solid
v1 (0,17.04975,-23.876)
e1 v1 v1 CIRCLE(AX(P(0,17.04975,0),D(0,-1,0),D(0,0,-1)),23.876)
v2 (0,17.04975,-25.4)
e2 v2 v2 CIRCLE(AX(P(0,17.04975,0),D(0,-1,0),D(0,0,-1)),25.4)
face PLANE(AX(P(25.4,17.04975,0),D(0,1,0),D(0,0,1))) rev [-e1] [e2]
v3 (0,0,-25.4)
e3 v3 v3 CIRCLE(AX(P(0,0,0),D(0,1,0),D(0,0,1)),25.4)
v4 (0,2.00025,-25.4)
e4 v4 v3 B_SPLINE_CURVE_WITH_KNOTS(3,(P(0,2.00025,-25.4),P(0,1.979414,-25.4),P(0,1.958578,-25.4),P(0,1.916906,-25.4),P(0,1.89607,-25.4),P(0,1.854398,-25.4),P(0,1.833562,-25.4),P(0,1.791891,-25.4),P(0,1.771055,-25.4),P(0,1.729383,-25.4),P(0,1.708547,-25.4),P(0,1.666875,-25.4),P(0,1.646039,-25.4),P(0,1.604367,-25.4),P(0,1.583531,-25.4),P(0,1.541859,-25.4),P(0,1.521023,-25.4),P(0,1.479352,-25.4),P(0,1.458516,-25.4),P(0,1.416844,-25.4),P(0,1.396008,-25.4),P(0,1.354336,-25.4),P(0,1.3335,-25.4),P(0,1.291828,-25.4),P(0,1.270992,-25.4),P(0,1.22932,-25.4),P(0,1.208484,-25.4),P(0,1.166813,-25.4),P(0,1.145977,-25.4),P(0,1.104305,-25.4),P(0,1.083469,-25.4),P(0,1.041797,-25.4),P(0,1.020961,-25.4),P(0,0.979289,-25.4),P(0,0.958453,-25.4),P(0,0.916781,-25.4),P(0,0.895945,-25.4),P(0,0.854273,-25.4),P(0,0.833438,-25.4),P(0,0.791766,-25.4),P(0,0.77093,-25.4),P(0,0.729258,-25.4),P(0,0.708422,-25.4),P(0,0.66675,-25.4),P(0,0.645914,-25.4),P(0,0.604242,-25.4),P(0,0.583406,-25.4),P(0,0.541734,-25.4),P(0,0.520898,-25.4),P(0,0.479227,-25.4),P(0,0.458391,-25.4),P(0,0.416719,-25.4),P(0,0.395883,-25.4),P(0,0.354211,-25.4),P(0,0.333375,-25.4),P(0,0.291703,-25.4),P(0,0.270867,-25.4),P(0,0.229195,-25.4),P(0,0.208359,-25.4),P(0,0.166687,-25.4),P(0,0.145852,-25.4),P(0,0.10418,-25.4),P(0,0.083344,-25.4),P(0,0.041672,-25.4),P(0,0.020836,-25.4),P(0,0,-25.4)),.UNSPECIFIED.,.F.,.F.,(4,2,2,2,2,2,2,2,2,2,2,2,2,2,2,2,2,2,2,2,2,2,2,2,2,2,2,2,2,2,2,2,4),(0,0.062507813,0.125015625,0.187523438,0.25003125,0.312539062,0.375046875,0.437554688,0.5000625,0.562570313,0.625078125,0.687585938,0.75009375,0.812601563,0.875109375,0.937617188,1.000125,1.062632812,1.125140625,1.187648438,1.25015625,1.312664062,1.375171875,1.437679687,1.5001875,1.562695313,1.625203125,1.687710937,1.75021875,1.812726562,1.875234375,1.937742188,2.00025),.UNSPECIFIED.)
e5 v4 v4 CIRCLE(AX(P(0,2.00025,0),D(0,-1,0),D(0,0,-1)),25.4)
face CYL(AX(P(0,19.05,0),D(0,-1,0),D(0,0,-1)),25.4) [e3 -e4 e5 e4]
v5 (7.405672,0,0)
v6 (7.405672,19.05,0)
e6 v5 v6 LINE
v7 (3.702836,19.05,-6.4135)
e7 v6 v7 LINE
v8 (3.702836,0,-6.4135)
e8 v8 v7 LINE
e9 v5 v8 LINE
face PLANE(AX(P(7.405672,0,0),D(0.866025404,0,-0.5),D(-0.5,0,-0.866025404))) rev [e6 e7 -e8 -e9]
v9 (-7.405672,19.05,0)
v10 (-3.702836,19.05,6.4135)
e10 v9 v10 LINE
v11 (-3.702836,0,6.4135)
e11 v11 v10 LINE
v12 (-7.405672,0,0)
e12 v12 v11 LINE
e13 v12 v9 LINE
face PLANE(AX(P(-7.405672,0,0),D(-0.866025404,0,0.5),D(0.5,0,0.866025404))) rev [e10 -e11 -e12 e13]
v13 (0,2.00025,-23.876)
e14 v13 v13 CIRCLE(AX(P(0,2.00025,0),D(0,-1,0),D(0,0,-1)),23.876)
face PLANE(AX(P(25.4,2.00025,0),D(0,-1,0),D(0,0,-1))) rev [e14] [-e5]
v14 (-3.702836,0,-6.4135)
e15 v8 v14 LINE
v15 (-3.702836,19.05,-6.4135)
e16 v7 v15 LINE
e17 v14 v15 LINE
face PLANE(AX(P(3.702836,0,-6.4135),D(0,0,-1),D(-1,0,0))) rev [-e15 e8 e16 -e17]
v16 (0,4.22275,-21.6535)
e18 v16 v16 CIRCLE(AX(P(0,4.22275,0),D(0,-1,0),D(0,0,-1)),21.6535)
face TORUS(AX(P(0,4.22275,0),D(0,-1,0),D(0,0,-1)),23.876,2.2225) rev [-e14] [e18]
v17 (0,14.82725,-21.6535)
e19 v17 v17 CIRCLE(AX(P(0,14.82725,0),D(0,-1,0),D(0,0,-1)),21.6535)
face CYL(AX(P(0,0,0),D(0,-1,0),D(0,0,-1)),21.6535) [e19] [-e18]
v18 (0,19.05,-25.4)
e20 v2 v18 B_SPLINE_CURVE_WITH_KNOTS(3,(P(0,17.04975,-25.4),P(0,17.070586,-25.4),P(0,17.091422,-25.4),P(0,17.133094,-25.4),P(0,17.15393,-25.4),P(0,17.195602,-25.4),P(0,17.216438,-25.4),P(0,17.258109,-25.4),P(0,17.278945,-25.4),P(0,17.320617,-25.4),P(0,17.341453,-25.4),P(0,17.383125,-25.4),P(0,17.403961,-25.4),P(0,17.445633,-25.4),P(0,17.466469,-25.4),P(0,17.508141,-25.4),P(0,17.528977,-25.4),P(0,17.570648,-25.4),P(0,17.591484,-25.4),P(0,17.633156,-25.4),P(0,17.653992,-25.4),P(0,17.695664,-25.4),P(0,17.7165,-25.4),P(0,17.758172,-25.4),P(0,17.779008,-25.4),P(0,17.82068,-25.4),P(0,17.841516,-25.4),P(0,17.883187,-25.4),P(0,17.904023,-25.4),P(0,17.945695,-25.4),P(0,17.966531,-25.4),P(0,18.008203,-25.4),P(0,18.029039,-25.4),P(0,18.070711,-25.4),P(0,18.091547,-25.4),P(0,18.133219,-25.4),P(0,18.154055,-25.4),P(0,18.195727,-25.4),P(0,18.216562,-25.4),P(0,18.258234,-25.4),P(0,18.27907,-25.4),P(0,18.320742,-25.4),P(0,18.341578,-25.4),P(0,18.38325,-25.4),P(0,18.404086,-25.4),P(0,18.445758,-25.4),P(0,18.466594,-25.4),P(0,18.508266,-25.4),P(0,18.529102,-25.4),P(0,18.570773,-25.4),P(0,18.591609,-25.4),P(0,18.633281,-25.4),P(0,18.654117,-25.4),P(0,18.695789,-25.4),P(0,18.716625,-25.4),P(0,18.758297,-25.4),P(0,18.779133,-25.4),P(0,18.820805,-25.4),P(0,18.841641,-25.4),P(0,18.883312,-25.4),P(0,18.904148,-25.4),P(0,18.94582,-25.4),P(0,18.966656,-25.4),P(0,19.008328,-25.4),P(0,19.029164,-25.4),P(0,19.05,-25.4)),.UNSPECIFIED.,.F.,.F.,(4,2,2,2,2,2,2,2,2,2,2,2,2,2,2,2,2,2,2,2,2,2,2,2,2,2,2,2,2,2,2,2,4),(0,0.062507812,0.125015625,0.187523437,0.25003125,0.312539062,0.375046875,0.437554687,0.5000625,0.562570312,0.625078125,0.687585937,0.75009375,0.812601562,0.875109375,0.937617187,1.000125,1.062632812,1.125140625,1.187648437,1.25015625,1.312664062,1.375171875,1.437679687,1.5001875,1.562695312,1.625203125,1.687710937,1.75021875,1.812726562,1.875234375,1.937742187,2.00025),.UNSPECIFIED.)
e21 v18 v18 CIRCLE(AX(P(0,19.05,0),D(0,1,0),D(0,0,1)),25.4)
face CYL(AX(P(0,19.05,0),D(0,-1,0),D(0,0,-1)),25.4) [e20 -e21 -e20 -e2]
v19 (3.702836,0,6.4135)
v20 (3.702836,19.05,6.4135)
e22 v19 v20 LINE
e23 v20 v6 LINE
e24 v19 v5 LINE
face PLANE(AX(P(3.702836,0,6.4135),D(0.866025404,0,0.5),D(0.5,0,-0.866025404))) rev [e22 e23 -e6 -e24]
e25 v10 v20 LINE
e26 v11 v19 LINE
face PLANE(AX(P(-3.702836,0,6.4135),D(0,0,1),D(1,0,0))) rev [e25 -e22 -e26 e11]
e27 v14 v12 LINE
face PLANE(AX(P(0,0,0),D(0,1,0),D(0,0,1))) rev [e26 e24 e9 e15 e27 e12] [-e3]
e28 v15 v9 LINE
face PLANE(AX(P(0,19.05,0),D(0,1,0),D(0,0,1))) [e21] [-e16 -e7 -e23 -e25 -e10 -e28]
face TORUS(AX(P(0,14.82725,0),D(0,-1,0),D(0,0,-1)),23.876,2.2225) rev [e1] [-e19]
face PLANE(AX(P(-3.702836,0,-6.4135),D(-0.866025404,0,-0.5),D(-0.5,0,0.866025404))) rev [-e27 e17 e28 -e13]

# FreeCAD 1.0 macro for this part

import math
import FreeCAD as App
import Part
import Sketcher
from FreeCAD import Vector
Q = App.Units.Quantity

doc = App.newDocument("Part")
body = doc.addObject("PartDesign::Body", "Body")

# Sketch on XZ plane
sketch1 = body.newObject("Sketcher::SketchObject", "Sketch")
sketch1.AttachmentSupport = (doc.getObject("XZ_Plane"), [""])
sketch1.MapMode = "FlatFace"
sketch1.addGeometry(Part.Circle(Vector(0, 0, 0), Vector(0, 0, 1), 25.4), False)
sketch1.addGeometry(Part.Circle(Vector(0, 0, 0), Vector(0, 0, 1), 4.8), False)
sketch1.addConstraint(Sketcher.Constraint("Coincident", 0, 3, -1, 1))
sketch1.addConstraint(Sketcher.Constraint("Coincident", 1, 3, -1, 1))
sketch1.addConstraint(Sketcher.Constraint("Diameter", 0, Q("2 in")))
sketch1.addConstraint(Sketcher.Constraint("Diameter", 1, Q("0.381 in")))
pad1 = body.newObject("PartDesign::Pad", "Pad")
pad1.Profile = sketch1
pad1.Length = Q("0.75 in")
pad1.Reversed = True

# Sketch on XZ plane
sketch2 = body.newObject("Sketcher::SketchObject", "Sketch001")
sketch2.AttachmentSupport = (doc.getObject("XZ_Plane"), [""])
sketch2.MapMode = "FlatFace"
sketch2.AttachmentOffset = App.Placement(Vector(0, 0, -0.75 * 25.4), App.Rotation())
sketch2.addGeometry(Part.LineSegment(Vector(4, 6, 0), Vector(7, 0, 0)), False)
sketch2.addGeometry(Part.LineSegment(Vector(7, 0, 0), Vector(4, -6, 0)), False)
sketch2.addGeometry(Part.LineSegment(Vector(4, -6, 0), Vector(-4, -6, 0)), False)
sketch2.addGeometry(Part.LineSegment(Vector(-4, -6, 0), Vector(-7, 0, 0)), False)
sketch2.addGeometry(Part.LineSegment(Vector(-7, 0, 0), Vector(-4, 6, 0)), False)
sketch2.addGeometry(Part.LineSegment(Vector(-4, 6, 0), Vector(4, 6, 0)), False)
sketch2.addConstraint(Sketcher.Constraint("Coincident", 0, 2, 1, 1))
sketch2.addConstraint(Sketcher.Constraint("Coincident", 1, 2, 2, 1))
sketch2.addConstraint(Sketcher.Constraint("Coincident", 2, 2, 3, 1))
sketch2.addConstraint(Sketcher.Constraint("Coincident", 3, 2, 4, 1))
sketch2.addConstraint(Sketcher.Constraint("Coincident", 4, 2, 5, 1))
sketch2.addConstraint(Sketcher.Constraint("Coincident", 5, 2, 0, 1))
sketch2.addConstraint(Sketcher.Constraint("Horizontal", 2))
sketch2.addConstraint(Sketcher.Constraint("Horizontal", 5))
sketch2.addConstraint(Sketcher.Constraint("Symmetric", 0, 2, 3, 2, -1, 1))
sketch2.addConstraint(Sketcher.Constraint("Symmetric", 1, 2, 4, 2, -1, 1))
sketch2.addConstraint(Sketcher.Constraint("PointOnObject", 0, 2, -1))
sketch2.addConstraint(Sketcher.Constraint("Parallel", 0, 3))
sketch2.addConstraint(Sketcher.Constraint("Vertical", 2, 2, 4, 2))
sketch2.addConstraint(Sketcher.Constraint("Angle", 0, Q("-60 deg")))
sketch2.addConstraint(Sketcher.Constraint("DistanceY", 2, 2, 4, 2, Q("0.505 in")))
sketch2.addConstraint(Sketcher.Constraint("DistanceX", 2, 2, 2, 1, 7.405672))
pocket1 = body.newObject("PartDesign::Pocket", "Pocket")
pocket1.Profile = sketch2
pocket1.Type = "ThroughAll"
pocket1.Reversed = True

# Sketch on XY plane
sketch3 = body.newObject("Sketcher::SketchObject", "Sketch002")
sketch3.AttachmentSupport = (doc.getObject("XY_Plane"), [""])
sketch3.MapMode = "FlatFace"
sketch3.addGeometry(Part.LineSegment(Vector(25.4, 17, 0), Vector(23.9, 17, 0)), False)
sketch3.addGeometry(Part.ArcOfCircle(Part.Circle(Vector(23.9, 14.8, 0), Vector(0, 0, 1), 2.2), math.radians(90), math.radians(180)), False)
sketch3.addGeometry(Part.LineSegment(Vector(21.7, 14.8, 0), Vector(21.7, 4.2, 0)), False)
sketch3.addGeometry(Part.ArcOfCircle(Part.Circle(Vector(23.9, 4.2, 0), Vector(0, 0, 1), 2.2), math.radians(-180), math.radians(-90)), False)
sketch3.addGeometry(Part.LineSegment(Vector(23.9, 2, 0), Vector(25.4, 2, 0)), False)
sketch3.addGeometry(Part.LineSegment(Vector(25.4, 2, 0), Vector(25.4, 17, 0)), False)
sketch3.addConstraint(Sketcher.Constraint("Tangent", 0, 2, 1, 1))
sketch3.addConstraint(Sketcher.Constraint("Tangent", 1, 2, 2, 1))
sketch3.addConstraint(Sketcher.Constraint("Tangent", 2, 2, 3, 1))
sketch3.addConstraint(Sketcher.Constraint("Tangent", 3, 2, 4, 1))
sketch3.addConstraint(Sketcher.Constraint("Coincident", 4, 2, 5, 1))
sketch3.addConstraint(Sketcher.Constraint("Coincident", 5, 2, 0, 1))
sketch3.addConstraint(Sketcher.Constraint("Horizontal", 0))
sketch3.addConstraint(Sketcher.Constraint("Vertical", 2))
sketch3.addConstraint(Sketcher.Constraint("Horizontal", 4))
sketch3.addConstraint(Sketcher.Constraint("Vertical", 5))
sketch3.addConstraint(Sketcher.Constraint("Equal", 1, 3))
sketch3.addConstraint(Sketcher.Constraint("DistanceX", -1, 1, 4, 2, Q("1 in")))
sketch3.addConstraint(Sketcher.Constraint("DistanceX", 0, 2, 0, 1, Q("0.06 in")))
sketch3.addConstraint(Sketcher.Constraint("Radius", 1, Q("0.0875 in")))
sketch3.addConstraint(Sketcher.Constraint("DistanceY", 2, 2, 2, 1, Q("0.4175 in")))
sketch3.addConstraint(Sketcher.Constraint("DistanceY", -1, 1, 1, 3, 14.82725))
groove = body.newObject("PartDesign::Groove", "Groove")
groove.Profile = sketch3
groove.ReferenceAxis = (sketch3, ["V_Axis"])
groove.Angle = 360

doc.recompute()
